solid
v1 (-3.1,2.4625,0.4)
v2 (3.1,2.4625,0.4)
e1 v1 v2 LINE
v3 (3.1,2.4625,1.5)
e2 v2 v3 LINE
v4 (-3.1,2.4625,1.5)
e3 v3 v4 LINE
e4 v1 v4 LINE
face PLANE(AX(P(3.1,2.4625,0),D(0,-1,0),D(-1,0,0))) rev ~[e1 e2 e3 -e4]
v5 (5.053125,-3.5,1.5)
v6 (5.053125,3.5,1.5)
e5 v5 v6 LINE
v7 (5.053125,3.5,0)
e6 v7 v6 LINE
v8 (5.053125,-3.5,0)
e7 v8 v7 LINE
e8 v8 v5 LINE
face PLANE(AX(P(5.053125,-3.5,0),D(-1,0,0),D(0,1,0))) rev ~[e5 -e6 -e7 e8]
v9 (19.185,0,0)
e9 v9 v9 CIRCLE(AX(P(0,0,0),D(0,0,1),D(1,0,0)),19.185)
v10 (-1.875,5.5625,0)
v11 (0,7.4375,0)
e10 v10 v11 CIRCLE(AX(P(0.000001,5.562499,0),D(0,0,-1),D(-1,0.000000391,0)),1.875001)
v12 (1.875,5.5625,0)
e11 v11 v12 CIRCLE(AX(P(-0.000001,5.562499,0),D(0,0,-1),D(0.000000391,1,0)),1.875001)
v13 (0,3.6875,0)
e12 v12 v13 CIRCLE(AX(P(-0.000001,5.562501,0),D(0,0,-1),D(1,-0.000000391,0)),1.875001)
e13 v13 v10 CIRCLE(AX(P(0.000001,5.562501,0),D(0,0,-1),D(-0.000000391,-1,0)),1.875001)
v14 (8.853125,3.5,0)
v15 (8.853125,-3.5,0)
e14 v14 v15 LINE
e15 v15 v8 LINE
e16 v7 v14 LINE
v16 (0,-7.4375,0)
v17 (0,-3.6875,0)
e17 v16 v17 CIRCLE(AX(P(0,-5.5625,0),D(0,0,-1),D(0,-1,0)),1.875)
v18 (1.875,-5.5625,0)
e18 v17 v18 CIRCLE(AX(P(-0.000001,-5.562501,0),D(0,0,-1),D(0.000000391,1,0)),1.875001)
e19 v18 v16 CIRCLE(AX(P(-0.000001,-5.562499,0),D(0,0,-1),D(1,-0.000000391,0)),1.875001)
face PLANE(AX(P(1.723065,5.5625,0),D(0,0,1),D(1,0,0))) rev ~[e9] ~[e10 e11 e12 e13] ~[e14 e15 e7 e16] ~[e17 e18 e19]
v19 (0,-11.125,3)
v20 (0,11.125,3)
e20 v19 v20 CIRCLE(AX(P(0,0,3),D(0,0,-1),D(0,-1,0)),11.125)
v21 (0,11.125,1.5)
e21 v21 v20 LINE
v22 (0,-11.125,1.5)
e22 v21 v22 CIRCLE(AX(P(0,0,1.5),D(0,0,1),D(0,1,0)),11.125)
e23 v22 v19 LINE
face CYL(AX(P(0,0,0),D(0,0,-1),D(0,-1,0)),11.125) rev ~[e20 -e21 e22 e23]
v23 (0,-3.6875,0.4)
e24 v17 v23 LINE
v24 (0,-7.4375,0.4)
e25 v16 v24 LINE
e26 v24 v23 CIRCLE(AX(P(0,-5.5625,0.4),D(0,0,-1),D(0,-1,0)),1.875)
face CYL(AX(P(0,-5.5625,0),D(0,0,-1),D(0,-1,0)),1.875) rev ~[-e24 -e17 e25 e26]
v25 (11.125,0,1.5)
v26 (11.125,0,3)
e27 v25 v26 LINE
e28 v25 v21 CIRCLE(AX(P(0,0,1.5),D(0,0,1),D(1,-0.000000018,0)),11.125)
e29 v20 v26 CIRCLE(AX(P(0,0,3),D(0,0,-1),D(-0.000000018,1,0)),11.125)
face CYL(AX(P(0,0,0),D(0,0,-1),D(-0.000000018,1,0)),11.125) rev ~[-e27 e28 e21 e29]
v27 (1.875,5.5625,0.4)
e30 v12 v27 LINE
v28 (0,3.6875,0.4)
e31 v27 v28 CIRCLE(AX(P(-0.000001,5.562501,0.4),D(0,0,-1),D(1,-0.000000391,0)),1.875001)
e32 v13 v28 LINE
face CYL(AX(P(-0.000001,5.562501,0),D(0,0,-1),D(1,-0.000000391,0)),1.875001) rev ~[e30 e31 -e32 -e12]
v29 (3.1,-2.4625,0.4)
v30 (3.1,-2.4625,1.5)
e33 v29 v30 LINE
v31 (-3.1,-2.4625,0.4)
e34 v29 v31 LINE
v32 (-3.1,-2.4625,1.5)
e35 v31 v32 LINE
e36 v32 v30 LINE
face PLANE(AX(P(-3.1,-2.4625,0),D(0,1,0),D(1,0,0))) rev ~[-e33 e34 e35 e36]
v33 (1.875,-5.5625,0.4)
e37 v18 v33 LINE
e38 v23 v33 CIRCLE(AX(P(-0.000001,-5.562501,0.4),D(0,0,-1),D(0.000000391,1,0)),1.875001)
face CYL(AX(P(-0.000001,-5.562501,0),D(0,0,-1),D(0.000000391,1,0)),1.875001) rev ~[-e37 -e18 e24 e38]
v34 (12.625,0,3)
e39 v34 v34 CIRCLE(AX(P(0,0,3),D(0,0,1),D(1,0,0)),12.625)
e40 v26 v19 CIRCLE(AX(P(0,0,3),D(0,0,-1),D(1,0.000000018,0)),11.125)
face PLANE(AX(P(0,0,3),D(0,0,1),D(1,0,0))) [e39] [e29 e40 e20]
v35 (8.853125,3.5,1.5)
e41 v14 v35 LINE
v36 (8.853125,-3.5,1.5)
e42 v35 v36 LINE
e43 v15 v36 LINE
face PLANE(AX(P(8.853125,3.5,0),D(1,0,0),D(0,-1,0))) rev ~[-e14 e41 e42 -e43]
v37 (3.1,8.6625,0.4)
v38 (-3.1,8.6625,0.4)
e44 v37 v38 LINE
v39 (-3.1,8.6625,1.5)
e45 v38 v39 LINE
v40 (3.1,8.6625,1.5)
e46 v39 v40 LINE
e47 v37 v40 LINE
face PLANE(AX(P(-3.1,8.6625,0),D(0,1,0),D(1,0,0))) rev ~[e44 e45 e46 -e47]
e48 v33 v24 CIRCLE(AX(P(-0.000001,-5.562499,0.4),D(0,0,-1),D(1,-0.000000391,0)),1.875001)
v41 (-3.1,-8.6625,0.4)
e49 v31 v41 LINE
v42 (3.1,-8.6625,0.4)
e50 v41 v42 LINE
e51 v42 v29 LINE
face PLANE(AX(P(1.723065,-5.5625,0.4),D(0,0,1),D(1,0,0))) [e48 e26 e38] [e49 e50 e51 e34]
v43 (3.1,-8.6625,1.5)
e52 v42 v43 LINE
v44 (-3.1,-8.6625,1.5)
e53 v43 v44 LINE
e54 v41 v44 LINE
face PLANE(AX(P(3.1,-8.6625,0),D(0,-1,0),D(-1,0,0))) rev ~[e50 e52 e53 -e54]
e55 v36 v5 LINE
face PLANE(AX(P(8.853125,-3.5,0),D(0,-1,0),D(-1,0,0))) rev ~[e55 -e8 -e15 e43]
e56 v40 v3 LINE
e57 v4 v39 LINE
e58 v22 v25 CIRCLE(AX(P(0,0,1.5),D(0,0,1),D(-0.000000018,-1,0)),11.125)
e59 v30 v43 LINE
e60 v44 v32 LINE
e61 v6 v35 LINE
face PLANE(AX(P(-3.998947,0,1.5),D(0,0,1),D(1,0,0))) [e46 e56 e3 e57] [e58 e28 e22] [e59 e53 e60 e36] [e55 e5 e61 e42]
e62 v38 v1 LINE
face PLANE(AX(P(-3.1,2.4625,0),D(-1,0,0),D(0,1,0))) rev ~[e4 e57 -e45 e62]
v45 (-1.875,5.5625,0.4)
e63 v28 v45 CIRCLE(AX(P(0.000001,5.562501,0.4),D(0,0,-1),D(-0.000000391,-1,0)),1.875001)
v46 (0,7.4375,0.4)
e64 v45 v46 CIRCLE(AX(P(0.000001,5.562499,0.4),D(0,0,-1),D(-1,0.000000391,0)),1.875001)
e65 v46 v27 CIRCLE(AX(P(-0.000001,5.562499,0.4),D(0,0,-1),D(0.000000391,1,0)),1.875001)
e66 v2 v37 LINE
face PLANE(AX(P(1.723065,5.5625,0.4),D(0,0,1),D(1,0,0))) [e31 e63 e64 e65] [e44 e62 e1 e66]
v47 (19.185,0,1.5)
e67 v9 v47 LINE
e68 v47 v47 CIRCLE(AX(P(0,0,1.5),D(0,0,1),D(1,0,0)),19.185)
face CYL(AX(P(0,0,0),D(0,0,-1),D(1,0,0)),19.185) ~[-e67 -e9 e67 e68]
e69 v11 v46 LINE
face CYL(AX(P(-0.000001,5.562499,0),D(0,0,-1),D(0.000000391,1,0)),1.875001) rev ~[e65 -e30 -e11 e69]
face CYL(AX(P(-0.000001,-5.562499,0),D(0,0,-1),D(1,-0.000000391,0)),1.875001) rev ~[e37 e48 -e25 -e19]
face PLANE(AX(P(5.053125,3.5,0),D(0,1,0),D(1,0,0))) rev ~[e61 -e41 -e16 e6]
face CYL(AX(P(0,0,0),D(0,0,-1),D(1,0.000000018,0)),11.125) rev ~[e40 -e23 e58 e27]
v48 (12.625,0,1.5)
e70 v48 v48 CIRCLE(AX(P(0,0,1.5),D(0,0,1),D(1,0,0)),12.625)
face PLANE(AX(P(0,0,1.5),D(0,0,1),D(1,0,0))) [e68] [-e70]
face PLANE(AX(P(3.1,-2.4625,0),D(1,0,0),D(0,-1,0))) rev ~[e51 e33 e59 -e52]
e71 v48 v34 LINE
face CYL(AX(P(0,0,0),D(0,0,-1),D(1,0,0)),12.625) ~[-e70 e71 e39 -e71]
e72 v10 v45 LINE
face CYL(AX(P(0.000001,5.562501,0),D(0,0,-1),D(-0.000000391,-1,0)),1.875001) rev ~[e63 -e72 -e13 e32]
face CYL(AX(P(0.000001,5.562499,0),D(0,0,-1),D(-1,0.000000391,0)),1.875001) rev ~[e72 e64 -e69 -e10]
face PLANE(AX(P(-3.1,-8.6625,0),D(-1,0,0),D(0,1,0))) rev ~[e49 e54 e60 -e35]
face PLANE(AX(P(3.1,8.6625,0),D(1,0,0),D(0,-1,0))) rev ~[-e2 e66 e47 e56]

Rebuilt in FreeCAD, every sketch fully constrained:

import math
import FreeCAD as App
import Part
import Sketcher
Q = App.Units.Quantity

doc = App.newDocument("Part")
body = doc.addObject("PartDesign::Body", "Body")

sketch1 = body.newObject("Sketcher::SketchObject", "Sketch")
sketch1.AttachmentSupport = (doc.getObject("XY_Plane"), [""])
sketch1.MapMode = "FlatFace"
sketch1.addGeometry([
    Part.Circle(App.Vector(0, 0, 0), App.Vector(0, 0, 1), 19),
    Part.Circle(App.Vector(0, 0, 0), App.Vector(0, 0, 1), 13),
], False)
sketch1.addConstraint([
    Sketcher.Constraint("Coincident", 0, 3, -1, 1),
    Sketcher.Constraint("Coincident", 1, 3, -1, 1),
    Sketcher.Constraint("Diameter", 0, Q("38.37 mm")),
    Sketcher.Constraint("Diameter", 1, Q("25.25 mm")),
])
pad1 = body.newObject("PartDesign::Pad", "Pad")
pad1.Profile = sketch1
pad1.Length = 1.5

sketch2 = body.newObject("Sketcher::SketchObject", "Sketch001")
sketch2.AttachmentSupport = (doc.getObject("XY_Plane"), [""])
sketch2.MapMode = "FlatFace"
sketch2.addGeometry([
    Part.Circle(App.Vector(0, 0, 0), App.Vector(0, 0, 1), 13),
    Part.ArcOfCircle(Part.Circle(App.Vector(0, 0, 0), App.Vector(0, 0, 1), 11), math.radians(90), math.radians(270)),
    Part.ArcOfCircle(Part.Circle(App.Vector(0, 0, 0), App.Vector(0, 0, 1), 11), math.radians(0), math.radians(90)),
    Part.ArcOfCircle(Part.Circle(App.Vector(0, 0, 0), App.Vector(0, 0, 1), 11), math.radians(-90), math.radians(0)),
], False)
sketch2.addConstraint([
    Sketcher.Constraint("Tangent", 1, 1, 2, 2),
    Sketcher.Constraint("Tangent", 2, 1, 3, 2),
    Sketcher.Constraint("Tangent", 3, 1, 1, 2),
    Sketcher.Constraint("Coincident", 0, 3, -1, 1),
    Sketcher.Constraint("Coincident", 1, 3, -1, 1),
    Sketcher.Constraint("PointOnObject", 1, 1, -2),
    Sketcher.Constraint("PointOnObject", 2, 1, -1),
    Sketcher.Constraint("PointOnObject", 3, 1, -2),
    Sketcher.Constraint("Diameter", 0, Q("25.25 mm")),
    Sketcher.Constraint("Radius", 1, Q("11.125 mm")),
])
pad2 = body.newObject("PartDesign::Pad", "Pad001")
pad2.Profile = sketch2
pad2.Length = 3

sketch3 = body.newObject("Sketcher::SketchObject", "Sketch002")
sketch3.AttachmentSupport = (doc.getObject("XY_Plane"), [""])
sketch3.MapMode = "FlatFace"
sketch3.addGeometry([
    Part.ArcOfCircle(Part.Circle(App.Vector(0, 0, 0), App.Vector(0, 0, 1), 11.1), math.radians(90), math.radians(270)),
    Part.ArcOfCircle(Part.Circle(App.Vector(0, 0, 0), App.Vector(0, 0, 1), 11.1), math.radians(-90), math.radians(0)),
    Part.ArcOfCircle(Part.Circle(App.Vector(0, 0, 0), App.Vector(0, 0, 1), 11.1), math.radians(0), math.radians(90)),
    Part.LineSegment(App.Vector(-3.1, -8.7, 0), App.Vector(-3.1, -2.5, 0)),
    Part.LineSegment(App.Vector(-3.1, -2.5, 0), App.Vector(3.1, -2.5, 0)),
    Part.LineSegment(App.Vector(3.1, -2.5, 0), App.Vector(3.1, -8.7, 0)),
    Part.LineSegment(App.Vector(3.1, -8.7, 0), App.Vector(-3.1, -8.7, 0)),
    Part.LineSegment(App.Vector(-3.1, 2.5, 0), App.Vector(-3.1, 8.7, 0)),
    Part.LineSegment(App.Vector(-3.1, 8.7, 0), App.Vector(3.1, 8.7, 0)),
    Part.LineSegment(App.Vector(3.1, 8.7, 0), App.Vector(3.1, 2.5, 0)),
    Part.LineSegment(App.Vector(3.1, 2.5, 0), App.Vector(-3.1, 2.5, 0)),
    Part.LineSegment(App.Vector(8.9, 3.5, 0), App.Vector(8.9, -3.5, 0)),
    Part.LineSegment(App.Vector(8.9, -3.5, 0), App.Vector(5.1, -3.5, 0)),
    Part.LineSegment(App.Vector(5.1, -3.5, 0), App.Vector(5.1, 3.5, 0)),
    Part.LineSegment(App.Vector(5.1, 3.5, 0), App.Vector(8.9, 3.5, 0)),
], False)
sketch3.addConstraint([
    Sketcher.Constraint("Tangent", 0, 2, 1, 1),
    Sketcher.Constraint("Tangent", 1, 2, 2, 1),
    Sketcher.Constraint("Tangent", 2, 2, 0, 1),
    Sketcher.Constraint("Coincident", 3, 2, 4, 1),
    Sketcher.Constraint("Coincident", 4, 2, 5, 1),
    Sketcher.Constraint("Coincident", 5, 2, 6, 1),
    Sketcher.Constraint("Coincident", 6, 2, 3, 1),
    Sketcher.Constraint("Coincident", 7, 2, 8, 1),
    Sketcher.Constraint("Coincident", 8, 2, 9, 1),
    Sketcher.Constraint("Coincident", 9, 2, 10, 1),
    Sketcher.Constraint("Coincident", 10, 2, 7, 1),
    Sketcher.Constraint("Coincident", 11, 2, 12, 1),
    Sketcher.Constraint("Coincident", 12, 2, 13, 1),
    Sketcher.Constraint("Coincident", 13, 2, 14, 1),
    Sketcher.Constraint("Coincident", 14, 2, 11, 1),
    Sketcher.Constraint("Vertical", 3),
    Sketcher.Constraint("Horizontal", 4),
    Sketcher.Constraint("Vertical", 5),
    Sketcher.Constraint("Horizontal", 6),
    Sketcher.Constraint("Vertical", 7),
    Sketcher.Constraint("Horizontal", 8),
    Sketcher.Constraint("Vertical", 9),
    Sketcher.Constraint("Horizontal", 10),
    Sketcher.Constraint("Vertical", 11),
    Sketcher.Constraint("Horizontal", 12),
    Sketcher.Constraint("Vertical", 13),
    Sketcher.Constraint("Horizontal", 14),
    Sketcher.Constraint("Coincident", 0, 3, -1, 1),
    Sketcher.Constraint("Symmetric", 5, 2, 7, 2, -1, 1),
    Sketcher.Constraint("Symmetric", 3, 2, 9, 2, -1, 1),
    Sketcher.Constraint("PointOnObject", 0, 2, -2),
    Sketcher.Constraint("PointOnObject", 1, 2, -1),
    Sketcher.Constraint("PointOnObject", 2, 2, -2),
    Sketcher.Constraint("Vertical", 6, 2, 7, 2),
    Sketcher.Constraint("Equal", 10, 3),
    Sketcher.Constraint("DistanceY", 11, 2, 11, 1, Q("7 mm")),
    Sketcher.Constraint("DistanceX", 4, 1, 4, 2, Q("6.2 mm")),
    Sketcher.Constraint("DistanceX", 12, 2, 12, 1, Q("3.8 mm")),
    Sketcher.Constraint("Radius", 0, Q("11.125 mm")),
    Sketcher.Constraint("DistanceY", 11, 2, -1, 1, Q("3.5 mm")),
    Sketcher.Constraint("DistanceY", 3, 2, 7, 2, Q("11.125 mm")),
    Sketcher.Constraint("DistanceX", -1, 1, 11, 2, Q("8.853125 mm")),
])
pad3 = body.newObject("PartDesign::Pad", "Pad002")
pad3.Profile = sketch3
pad3.Length = 1.5

sketch4 = body.newObject("Sketcher::SketchObject", "Sketch003")
sketch4.AttachmentSupport = (doc.getObject("XY_Plane"), [""])
sketch4.MapMode = "FlatFace"
sketch4.addGeometry([
    Part.LineSegment(App.Vector(3.1, 8.7, 0), App.Vector(-3.1, 8.7, 0)),
    Part.LineSegment(App.Vector(-3.1, 8.7, 0), App.Vector(-3.1, 2.5, 0)),
    Part.LineSegment(App.Vector(-3.1, 2.5, 0), App.Vector(3.1, 2.5, 0)),
    Part.LineSegment(App.Vector(3.1, 2.5, 0), App.Vector(3.1, 8.7, 0)),
    Part.ArcOfCircle(Part.Circle(App.Vector(0, 5.6, 0), App.Vector(0, 0, 1), 1.9), math.radians(90), math.radians(180)),
    Part.ArcOfCircle(Part.Circle(App.Vector(0, 5.6, 0), App.Vector(0, 0, 1), 1.9), math.radians(0), math.radians(90)),
    Part.ArcOfCircle(Part.Circle(App.Vector(0, 5.6, 0), App.Vector(0, 0, 1), 1.9), math.radians(-90), math.radians(0)),
    Part.ArcOfCircle(Part.Circle(App.Vector(0, 5.6, 0), App.Vector(0, 0, 1), 1.9), math.radians(-180), math.radians(-90)),
    Part.LineSegment(App.Vector(3.1, -8.7, 0), App.Vector(3.1, -2.5, 0)),
    Part.LineSegment(App.Vector(3.1, -2.5, 0), App.Vector(-3.1, -2.5, 0)),
    Part.LineSegment(App.Vector(-3.1, -2.5, 0), App.Vector(-3.1, -8.7, 0)),
    Part.LineSegment(App.Vector(-3.1, -8.7, 0), App.Vector(3.1, -8.7, 0)),
    Part.ArcOfCircle(Part.Circle(App.Vector(0, -5.6, 0), App.Vector(0, 0, 1), 1.9), math.radians(0), math.radians(90)),
    Part.ArcOfCircle(Part.Circle(App.Vector(0, -5.6, 0), App.Vector(0, 0, 1), 1.9), math.radians(-90), math.radians(0)),
    Part.ArcOfCircle(Part.Circle(App.Vector(0, -5.6, 0), App.Vector(0, 0, 1), 1.9), math.radians(90), math.radians(270)),
], False)
sketch4.addConstraint([
    Sketcher.Constraint("Coincident", 0, 2, 1, 1),
    Sketcher.Constraint("Coincident", 1, 2, 2, 1),
    Sketcher.Constraint("Coincident", 2, 2, 3, 1),
    Sketcher.Constraint("Coincident", 3, 2, 0, 1),
    Sketcher.Constraint("Tangent", 4, 1, 5, 2),
    Sketcher.Constraint("Tangent", 5, 1, 6, 2),
    Sketcher.Constraint("Tangent", 6, 1, 7, 2),
    Sketcher.Constraint("Tangent", 7, 1, 4, 2),
    Sketcher.Constraint("Coincident", 8, 2, 9, 1),
    Sketcher.Constraint("Coincident", 9, 2, 10, 1),
    Sketcher.Constraint("Coincident", 10, 2, 11, 1),
    Sketcher.Constraint("Coincident", 11, 2, 8, 1),
    Sketcher.Constraint("Tangent", 12, 1, 13, 2),
    Sketcher.Constraint("Tangent", 13, 1, 14, 2),
    Sketcher.Constraint("Tangent", 14, 1, 12, 2),
    Sketcher.Constraint("Horizontal", 0),
    Sketcher.Constraint("Vertical", 1),
    Sketcher.Constraint("Horizontal", 2),
    Sketcher.Constraint("Vertical", 3),
    Sketcher.Constraint("Vertical", 8),
    Sketcher.Constraint("Horizontal", 9),
    Sketcher.Constraint("Vertical", 10),
    Sketcher.Constraint("Horizontal", 11),
    Sketcher.Constraint("Equal", 4, 5),
    Sketcher.Constraint("Equal", 7, 12),
    Sketcher.Constraint("Symmetric", 4, 3, 12, 3, -1, 1),
    Sketcher.Constraint("Symmetric", 1, 2, 8, 2, -1, 1),
    Sketcher.Constraint("Symmetric", 3, 2, 10, 2, -1, 1),
    Sketcher.Constraint("Symmetric", 5, 1, 7, 1, -2),
    Sketcher.Constraint("PointOnObject", 4, 1, -2),
    Sketcher.Constraint("PointOnObject", 6, 1, -2),
    Sketcher.Constraint("PointOnObject", 13, 1, -2),
    Sketcher.Constraint("PointOnObject", 14, 1, -2),
    Sketcher.Constraint("Horizontal", 7, 3, 5, 1),
    Sketcher.Constraint("Horizontal", 14, 3, 12, 1),
    Sketcher.Constraint("Vertical", 3, 2, 8, 2),
    Sketcher.Constraint("Equal", 11, 1),
    Sketcher.Constraint("DistanceX", 0, 2, 0, 1, Q("6.2 mm")),
    Sketcher.Constraint("Radius", 4, Q("1.875001 mm")),
    Sketcher.Constraint("DistanceY", 6, 3, 0, 2, Q("3.099999 mm")),
    Sketcher.Constraint("DistanceY", 8, 2, 6, 1, Q("6.15 mm")),
])
pad4 = body.newObject("PartDesign::Pad", "Pad003")
pad4.Profile = sketch4
pad4.Length = 0.4

doc.recompute()
